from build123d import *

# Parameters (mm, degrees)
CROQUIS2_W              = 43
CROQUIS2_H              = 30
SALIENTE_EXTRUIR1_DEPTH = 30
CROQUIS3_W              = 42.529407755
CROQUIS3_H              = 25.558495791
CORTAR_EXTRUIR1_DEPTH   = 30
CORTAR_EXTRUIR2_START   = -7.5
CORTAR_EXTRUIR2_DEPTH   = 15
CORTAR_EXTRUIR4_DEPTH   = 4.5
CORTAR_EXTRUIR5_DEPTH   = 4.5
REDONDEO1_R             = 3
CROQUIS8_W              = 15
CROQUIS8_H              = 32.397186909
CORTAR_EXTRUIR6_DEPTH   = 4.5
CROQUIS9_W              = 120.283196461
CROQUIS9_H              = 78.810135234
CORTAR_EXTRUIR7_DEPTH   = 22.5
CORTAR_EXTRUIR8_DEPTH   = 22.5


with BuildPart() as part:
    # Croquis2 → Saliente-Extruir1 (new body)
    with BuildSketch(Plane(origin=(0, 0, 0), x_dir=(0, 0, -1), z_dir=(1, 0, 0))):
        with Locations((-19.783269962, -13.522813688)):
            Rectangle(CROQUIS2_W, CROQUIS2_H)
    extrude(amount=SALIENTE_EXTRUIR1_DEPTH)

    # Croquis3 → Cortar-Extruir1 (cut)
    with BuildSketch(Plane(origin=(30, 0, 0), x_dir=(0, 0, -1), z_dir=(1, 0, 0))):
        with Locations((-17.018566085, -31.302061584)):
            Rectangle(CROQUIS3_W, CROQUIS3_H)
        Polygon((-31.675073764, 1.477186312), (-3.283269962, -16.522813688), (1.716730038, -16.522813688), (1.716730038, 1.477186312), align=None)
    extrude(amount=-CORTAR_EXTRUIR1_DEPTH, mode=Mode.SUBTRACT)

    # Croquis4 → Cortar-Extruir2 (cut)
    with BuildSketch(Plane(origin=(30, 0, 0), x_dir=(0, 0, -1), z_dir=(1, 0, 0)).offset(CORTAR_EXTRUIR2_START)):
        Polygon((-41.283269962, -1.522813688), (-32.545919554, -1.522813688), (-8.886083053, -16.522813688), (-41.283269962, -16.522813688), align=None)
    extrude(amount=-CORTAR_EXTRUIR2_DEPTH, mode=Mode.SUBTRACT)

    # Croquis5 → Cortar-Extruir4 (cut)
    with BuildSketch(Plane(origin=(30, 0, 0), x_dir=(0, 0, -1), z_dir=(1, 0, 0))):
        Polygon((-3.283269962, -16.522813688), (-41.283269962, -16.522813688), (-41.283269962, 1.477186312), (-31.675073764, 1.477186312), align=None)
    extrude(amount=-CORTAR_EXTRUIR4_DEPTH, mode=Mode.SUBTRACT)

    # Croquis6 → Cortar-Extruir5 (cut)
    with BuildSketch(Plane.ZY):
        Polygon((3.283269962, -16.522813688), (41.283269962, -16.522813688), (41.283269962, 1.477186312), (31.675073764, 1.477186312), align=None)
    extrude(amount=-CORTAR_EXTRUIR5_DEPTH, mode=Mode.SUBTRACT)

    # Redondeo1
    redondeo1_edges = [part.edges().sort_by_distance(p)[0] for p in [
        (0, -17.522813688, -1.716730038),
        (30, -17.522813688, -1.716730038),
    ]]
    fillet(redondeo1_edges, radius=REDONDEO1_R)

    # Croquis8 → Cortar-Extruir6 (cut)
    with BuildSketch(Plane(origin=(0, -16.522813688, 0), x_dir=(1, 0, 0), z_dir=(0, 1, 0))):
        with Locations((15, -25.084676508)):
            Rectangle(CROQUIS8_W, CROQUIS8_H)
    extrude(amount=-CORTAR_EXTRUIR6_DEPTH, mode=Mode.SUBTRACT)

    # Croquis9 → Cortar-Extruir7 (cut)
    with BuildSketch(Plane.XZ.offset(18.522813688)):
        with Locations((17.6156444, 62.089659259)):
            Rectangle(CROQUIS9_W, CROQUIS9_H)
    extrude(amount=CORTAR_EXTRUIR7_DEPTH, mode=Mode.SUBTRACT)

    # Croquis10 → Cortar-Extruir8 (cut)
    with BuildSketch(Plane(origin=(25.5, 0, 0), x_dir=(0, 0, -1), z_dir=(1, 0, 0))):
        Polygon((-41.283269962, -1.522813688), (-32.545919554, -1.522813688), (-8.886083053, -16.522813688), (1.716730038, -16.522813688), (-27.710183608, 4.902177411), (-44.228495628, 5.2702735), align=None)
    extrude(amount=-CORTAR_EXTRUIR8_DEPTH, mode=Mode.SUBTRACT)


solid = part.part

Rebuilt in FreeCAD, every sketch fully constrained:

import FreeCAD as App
import Part
import Sketcher
from FreeCAD import Vector


def edges_at(feature, points):
    """Names of the edges that pass closest to the given points."""
    edges = feature.Shape.Edges
    near = lambda p: min(range(len(edges)), key=lambda i: edges[i].distToShape(Part.Vertex(*p))[0])
    return sorted({f"Edge{near(p) + 1}" for p in points})


def add_polygon(sketch, points):
    """Adds a closed chain of lines whose ends are joined by coincident constraints."""
    first, n = sketch.GeometryCount, len(points)
    for a, b in zip(points, points[1:] + points[:1]):
        sketch.addGeometry(Part.LineSegment(App.Vector(*a, 0), App.Vector(*b, 0)), False)
    for i in range(n):
        sketch.addConstraint(Sketcher.Constraint("Coincident", first + i, 2, first + (i + 1) % n, 1))

doc = App.newDocument("Part")
params = doc.addObject("Spreadsheet::Sheet", "Params")
for row, (alias, value) in enumerate([
    ("sketch1_width", "30 mm"),
    ("sketch1_height", "43 mm"),
    ("pad1_length", "30 mm"),
    ("sketch2_width", "18 mm"),
    ("sketch2_height", "5 mm"),
    ("pocket1_length", "30 mm"),
    ("sketch3_width", "15 mm"),
    ("pocket2_length", "15 mm"),
    ("sketch4_width", "18 mm"),
    ("sketch4_height", "38 mm"),
    ("pocket3_length", "4.5 mm"),
    ("sketch5_width", "18 mm"),
    ("sketch5_height", "38 mm"),
    ("pocket4_length", "4.5 mm"),
    ("fillet_radius", "3 mm"),
    ("sketch6_width", "15 mm"),
    ("pocket5_length", "4.5 mm"),
    ("pocket6_length", "22.5 mm"),
    ("pocket7_length", "22.5 mm"),
], start=1):
    params.set(f"A{row}", alias)
    params.set(f"B{row}", "=" + value)
    params.setAlias(f"B{row}", alias)

body = doc.addObject("PartDesign::Body", "Body")

# Sketch on YZ plane
sketch1 = doc.addObject("Sketcher::SketchObject", "Sketch")
body.addObject(sketch1)
sketch1.AttachmentSupport = (doc.YZ_Plane, [""])
sketch1.MapMode = "FlatFace"
add_polygon(sketch1, [(1.477186, 41.28327), (-28.522814, 41.28327), (-28.522814, -1.71673), (1.477186, -1.71673)])  # lines 0-3
sketch1.addConstraint(Sketcher.Constraint("Horizontal", 0))
sketch1.addConstraint(Sketcher.Constraint("Vertical", 1))
sketch1.addConstraint(Sketcher.Constraint("Horizontal", 2))
sketch1.addConstraint(Sketcher.Constraint("Vertical", 3))
sketch1.addConstraint(Sketcher.Constraint("DistanceX", 0, 2, 0, 1, 30.0))
sketch1.addConstraint(Sketcher.Constraint("DistanceY", 1, 2, 1, 1, 43.0))
sketch1.addConstraint(Sketcher.Constraint("DistanceY", -1, 1, 0, 2, 41.28327))
sketch1.addConstraint(Sketcher.Constraint("DistanceX", 0, 2, -1, 1, 28.522814))
sketch1.setExpression("Constraints[8]", "Params.sketch1_width")
sketch1.setExpression("Constraints[9]", "Params.sketch1_height")
pad1 = doc.addObject("PartDesign::Pad", "Pad")
body.addObject(pad1)
pad1.Profile = sketch1
pad1.setExpression("Length", "Params.pad1_length")

# Sketch on YZ plane
sketch2 = doc.addObject("Sketcher::SketchObject", "Sketch001")
body.addObject(sketch2)
sketch2.AttachmentSupport = (doc.YZ_Plane, [""])
sketch2.MapMode = "FlatFace"
sketch2.AttachmentOffset = App.Placement(Vector(0, 0, 30), App.Rotation())
add_polygon(sketch2, [(-18.522814, 38.28327), (-44.081309, 38.28327), (-44.081309, -4.246138), (-18.522814, -4.246138)])  # lines 0-3
add_polygon(sketch2, [(1.477186, 31.675074), (-16.522814, 3.28327), (-16.522814, -1.71673), (1.477186, -1.71673)])  # lines 4-7
sketch2.addConstraint(Sketcher.Constraint("Horizontal", 0))
sketch2.addConstraint(Sketcher.Constraint("Vertical", 1))
sketch2.addConstraint(Sketcher.Constraint("Horizontal", 2))
sketch2.addConstraint(Sketcher.Constraint("Vertical", 3))
sketch2.addConstraint(Sketcher.Constraint("Vertical", 5))
sketch2.addConstraint(Sketcher.Constraint("Horizontal", 6))
sketch2.addConstraint(Sketcher.Constraint("Vertical", 7))
sketch2.addConstraint(Sketcher.Constraint("DistanceX", 6, 1, 6, 2, 18.0))
sketch2.addConstraint(Sketcher.Constraint("DistanceY", 5, 2, 5, 1, 5.0))
sketch2.addConstraint(Sketcher.Constraint("DistanceX", 2, 2, 4, 2, 2.0))
sketch2.addConstraint(Sketcher.Constraint("DistanceY", 4, 2, 3, 2, 35.0))
sketch2.addConstraint(Sketcher.Constraint("Distance", 4, 33.616879))
sketch2.addConstraint(Sketcher.Constraint("DistanceX", 0, 2, 0, 1, 25.558496))
sketch2.addConstraint(Sketcher.Constraint("DistanceY", 1, 2, 1, 1, 42.529408))
sketch2.addConstraint(Sketcher.Constraint("DistanceX", 0, 2, -1, 1, 44.081309))
sketch2.addConstraint(Sketcher.Constraint("DistanceY", -1, 1, 0, 2, 38.28327))
sketch2.setExpression("Constraints[15]", "Params.sketch2_width")
sketch2.setExpression("Constraints[16]", "Params.sketch2_height")
pocket1 = doc.addObject("PartDesign::Pocket", "Pocket")
body.addObject(pocket1)
pocket1.Profile = sketch2
pocket1.setExpression("Length", "Params.pocket1_length")

# Sketch on YZ plane
sketch3 = doc.addObject("Sketcher::SketchObject", "Sketch002")
body.addObject(sketch3)
sketch3.AttachmentSupport = (doc.YZ_Plane, [""])
sketch3.MapMode = "FlatFace"
sketch3.AttachmentOffset = App.Placement(Vector(0, 0, 22.5), App.Rotation())
add_polygon(sketch3, [(-1.522814, 32.54592), (-1.522814, 41.28327), (-16.522814, 41.28327), (-16.522814, 8.886083)])  # lines 0-3
sketch3.addConstraint(Sketcher.Constraint("Vertical", 0))
sketch3.addConstraint(Sketcher.Constraint("Horizontal", 1))
sketch3.addConstraint(Sketcher.Constraint("Vertical", 2))
sketch3.addConstraint(Sketcher.Constraint("DistanceX", 1, 2, 1, 1, 15.0))
sketch3.addConstraint(Sketcher.Constraint("DistanceY", 0, 1, 0, 2, 8.73735))
sketch3.addConstraint(Sketcher.Constraint("DistanceY", 2, 2, 2, 1, 32.397187))
sketch3.addConstraint(Sketcher.Constraint("DistanceY", -1, 1, 0, 2, 41.28327))
sketch3.addConstraint(Sketcher.Constraint("DistanceX", 0, 2, -1, 1, 1.522814))
sketch3.setExpression("Constraints[7]", "Params.sketch3_width")
pocket2 = doc.addObject("PartDesign::Pocket", "Pocket001")
body.addObject(pocket2)
pocket2.Profile = sketch3
pocket2.setExpression("Length", "Params.pocket2_length")

# Sketch on YZ plane
sketch4 = doc.addObject("Sketcher::SketchObject", "Sketch003")
body.addObject(sketch4)
sketch4.AttachmentSupport = (doc.YZ_Plane, [""])
sketch4.MapMode = "FlatFace"
sketch4.AttachmentOffset = App.Placement(Vector(0, 0, 30), App.Rotation())
add_polygon(sketch4, [(-16.522814, 41.28327), (-16.522814, 3.28327), (1.477186, 31.675074), (1.477186, 41.28327)])  # lines 0-3
sketch4.addConstraint(Sketcher.Constraint("Vertical", 0))
sketch4.addConstraint(Sketcher.Constraint("Vertical", 2))
sketch4.addConstraint(Sketcher.Constraint("Horizontal", 3))
sketch4.addConstraint(Sketcher.Constraint("DistanceX", 3, 2, 3, 1, 18.0))
sketch4.addConstraint(Sketcher.Constraint("DistanceY", 0, 2, 0, 1, 38.0))
sketch4.addConstraint(Sketcher.Constraint("Distance", 1, 33.616879))
sketch4.addConstraint(Sketcher.Constraint("DistanceY", -1, 1, 0, 2, 3.28327))
sketch4.addConstraint(Sketcher.Constraint("DistanceX", 0, 2, -1, 1, 16.522814))
sketch4.setExpression("Constraints[7]", "Params.sketch4_width")
sketch4.setExpression("Constraints[8]", "Params.sketch4_height")
pocket3 = doc.addObject("PartDesign::Pocket", "Pocket002")
body.addObject(pocket3)
pocket3.Profile = sketch4
pocket3.setExpression("Length", "Params.pocket3_length")

# Sketch on YZ plane
sketch5 = doc.addObject("Sketcher::SketchObject", "Sketch004")
body.addObject(sketch5)
sketch5.AttachmentSupport = (doc.YZ_Plane, [""])
sketch5.MapMode = "FlatFace"
add_polygon(sketch5, [(-16.522814, 3.28327), (-16.522814, 41.28327), (1.477186, 41.28327), (1.477186, 31.675074)])  # lines 0-3
sketch5.addConstraint(Sketcher.Constraint("Vertical", 0))
sketch5.addConstraint(Sketcher.Constraint("Horizontal", 1))
sketch5.addConstraint(Sketcher.Constraint("Vertical", 2))
sketch5.addConstraint(Sketcher.Constraint("DistanceX", 1, 1, 1, 2, 18.0))
sketch5.addConstraint(Sketcher.Constraint("DistanceY", 0, 1, 0, 2, 38.0))
sketch5.addConstraint(Sketcher.Constraint("Distance", 3, 33.616879))
sketch5.addConstraint(Sketcher.Constraint("DistanceY", -1, 1, 0, 2, 41.28327))
sketch5.addConstraint(Sketcher.Constraint("DistanceX", 0, 2, -1, 1, 16.522814))
sketch5.setExpression("Constraints[7]", "Params.sketch5_width")
sketch5.setExpression("Constraints[8]", "Params.sketch5_height")
pocket4 = doc.addObject("PartDesign::Pocket", "Pocket003")
body.addObject(pocket4)
pocket4.Profile = sketch5
pocket4.setExpression("Length", "Params.pocket4_length")
pocket4.Reversed = True
doc.recompute()

fillet = doc.addObject("PartDesign::Fillet", "Fillet")
body.addObject(fillet)
fillet.Base = (pocket4, edges_at(pocket4, [(0, -17.523, -1.717), (30, -17.523, -1.717)]))
fillet.setExpression("Radius", "Params.fillet_radius")

# Sketch on XZ plane
sketch6 = doc.addObject("Sketcher::SketchObject", "Sketch005")
body.addObject(sketch6)
sketch6.AttachmentSupport = (doc.XZ_Plane, [""])
sketch6.MapMode = "FlatFace"
sketch6.AttachmentOffset = App.Placement(Vector(0, 0, 16.522814), App.Rotation())
add_polygon(sketch6, [(7.5, 8.886083), (7.5, 41.28327), (22.5, 41.28327), (22.5, 8.886083)])  # lines 0-3
sketch6.addConstraint(Sketcher.Constraint("Vertical", 0))
sketch6.addConstraint(Sketcher.Constraint("Horizontal", 1))
sketch6.addConstraint(Sketcher.Constraint("Vertical", 2))
sketch6.addConstraint(Sketcher.Constraint("Horizontal", 3))
sketch6.addConstraint(Sketcher.Constraint("DistanceX", 1, 1, 1, 2, 15.0))
sketch6.addConstraint(Sketcher.Constraint("DistanceX", -1, 1, 0, 2, 7.5))
sketch6.addConstraint(Sketcher.Constraint("DistanceY", 0, 1, 0, 2, 32.397187))
sketch6.addConstraint(Sketcher.Constraint("DistanceY", -1, 1, 0, 2, 41.28327))
sketch6.setExpression("Constraints[8]", "Params.sketch6_width")
pocket5 = doc.addObject("PartDesign::Pocket", "Pocket004")
body.addObject(pocket5)
pocket5.Profile = sketch6
pocket5.setExpression("Length", "Params.pocket5_length")
pocket5.Reversed = True

# Sketch on XZ plane
sketch7 = doc.addObject("Sketcher::SketchObject", "Sketch006")
body.addObject(sketch7)
sketch7.AttachmentSupport = (doc.XZ_Plane, [""])
sketch7.MapMode = "FlatFace"
sketch7.AttachmentOffset = App.Placement(Vector(0, 0, 18.522814), App.Rotation())
add_polygon(sketch7, [(-42.525954, 101.494727), (-42.525954, 22.684592), (77.757243, 22.684592), (77.757243, 101.494727)])  # lines 0-3
sketch7.addConstraint(Sketcher.Constraint("Vertical", 0))
sketch7.addConstraint(Sketcher.Constraint("Horizontal", 1))
sketch7.addConstraint(Sketcher.Constraint("Vertical", 2))
sketch7.addConstraint(Sketcher.Constraint("Horizontal", 3))
sketch7.addConstraint(Sketcher.Constraint("DistanceX", 1, 1, 1, 2, 120.283196))
sketch7.addConstraint(Sketcher.Constraint("DistanceY", 0, 2, 0, 1, 78.810135))
sketch7.addConstraint(Sketcher.Constraint("DistanceY", -1, 1, 0, 2, 22.684592))
sketch7.addConstraint(Sketcher.Constraint("DistanceX", 0, 2, -1, 1, 42.525954))
pocket6 = doc.addObject("PartDesign::Pocket", "Pocket005")
body.addObject(pocket6)
pocket6.Profile = sketch7
pocket6.setExpression("Length", "Params.pocket6_length")
pocket6.Reversed = True

# Sketch on YZ plane
sketch8 = doc.addObject("Sketcher::SketchObject", "Sketch007")
body.addObject(sketch8)
sketch8.AttachmentSupport = (doc.YZ_Plane, [""])
sketch8.MapMode = "FlatFace"
sketch8.AttachmentOffset = App.Placement(Vector(0, 0, 25.5), App.Rotation())
add_polygon(sketch8, [(-1.522814, 41.28327), (-1.522814, 32.54592), (-16.522814, 8.886083), (-16.522814, -1.71673), (4.902177, 27.710184), (5.270274, 44.228496)])  # lines 0-5
sketch8.addConstraint(Sketcher.Constraint("Vertical", 0))
sketch8.addConstraint(Sketcher.Constraint("Vertical", 2))
sketch8.addConstraint(Sketcher.Constraint("DistanceX", 1, 2, 0, 2, 15.0))
sketch8.addConstraint(Sketcher.Constraint("DistanceY", 2, 2, 5, 2, 43.0))
sketch8.addConstraint(Sketcher.Constraint("DistanceY", 0, 2, 0, 1, 8.73735))
sketch8.addConstraint(Sketcher.Constraint("DistanceY", 1, 2, 3, 2, 18.824101))
sketch8.addConstraint(Sketcher.Constraint("Distance", 5, 7.404079))
sketch8.addConstraint(Sketcher.Constraint("DistanceY", 2, 2, 2, 1, 10.602813))
sketch8.addConstraint(Sketcher.Constraint("DistanceY", -1, 1, 0, 2, 32.54592))
sketch8.addConstraint(Sketcher.Constraint("DistanceX", 0, 2, 3, 2, 6.424991))
sketch8.addConstraint(Sketcher.Constraint("Distance", 4, 16.522413))
sketch8.addConstraint(Sketcher.Constraint("DistanceX", 0, 2, -1, 1, 1.522814))
pocket7 = doc.addObject("PartDesign::Pocket", "Pocket006")
body.addObject(pocket7)
pocket7.Profile = sketch8
pocket7.setExpression("Length", "Params.pocket7_length")

doc.recompute()
